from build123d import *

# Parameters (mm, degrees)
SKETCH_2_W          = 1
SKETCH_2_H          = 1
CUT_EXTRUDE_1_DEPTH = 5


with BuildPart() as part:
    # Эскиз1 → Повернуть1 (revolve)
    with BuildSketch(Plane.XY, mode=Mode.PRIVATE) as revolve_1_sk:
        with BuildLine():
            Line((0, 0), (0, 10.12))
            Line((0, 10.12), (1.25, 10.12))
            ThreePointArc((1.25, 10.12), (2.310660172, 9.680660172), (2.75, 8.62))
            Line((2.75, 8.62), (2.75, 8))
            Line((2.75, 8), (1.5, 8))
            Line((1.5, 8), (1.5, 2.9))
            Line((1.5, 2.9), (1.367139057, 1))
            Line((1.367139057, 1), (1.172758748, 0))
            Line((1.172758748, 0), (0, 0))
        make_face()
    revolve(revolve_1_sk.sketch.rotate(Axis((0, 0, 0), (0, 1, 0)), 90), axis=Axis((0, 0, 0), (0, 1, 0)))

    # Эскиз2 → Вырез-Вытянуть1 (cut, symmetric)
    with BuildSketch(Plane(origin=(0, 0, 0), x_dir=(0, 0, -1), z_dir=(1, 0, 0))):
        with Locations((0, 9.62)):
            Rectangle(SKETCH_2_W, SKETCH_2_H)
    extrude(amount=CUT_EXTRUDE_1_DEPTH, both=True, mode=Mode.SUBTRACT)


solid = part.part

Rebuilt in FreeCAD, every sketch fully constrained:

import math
import FreeCAD as App
import Part
import Sketcher

V = App.Vector
Q = App.Units.Quantity

doc = App.newDocument("Part")
body = doc.addObject("PartDesign::Body", "Body")

# Sketch on XY plane
sketch1 = body.newObject("Sketcher::SketchObject", "Sketch")
sketch1.AttachmentSupport = (doc.getObject("XY_Plane"), [""])
sketch1.MapMode = "FlatFace"
sketch1.addGeometry(Part.LineSegment(V(0, 10.1, 0), V(0, 0, 0)), False)
sketch1.addGeometry(Part.LineSegment(V(0, 0, 0), V(1.2, 0, 0)), False)
sketch1.addGeometry(Part.LineSegment(V(1.2, 0, 0), V(1.4, 1, 0)), False)
sketch1.addGeometry(Part.LineSegment(V(1.4, 1, 0), V(1.5, 2.9, 0)), False)
sketch1.addGeometry(Part.LineSegment(V(1.5, 2.9, 0), V(1.5, 8, 0)), False)
sketch1.addGeometry(Part.LineSegment(V(1.5, 8, 0), V(2.8, 8, 0)), False)
sketch1.addGeometry(Part.LineSegment(V(2.8, 8, 0), V(2.8, 8.6, 0)), False)
sketch1.addGeometry(Part.ArcOfCircle(Part.Circle(V(1.3, 8.6, 0), V(0, 0, 1), 1.5), math.radians(0), math.radians(90)), False)
sketch1.addGeometry(Part.LineSegment(V(1.2, 10.1, 0), V(0, 10.1, 0)), False)
sketch1.addConstraint(Sketcher.Constraint("Coincident", 0, 2, 1, 1))
sketch1.addConstraint(Sketcher.Constraint("Coincident", 1, 2, 2, 1))
sketch1.addConstraint(Sketcher.Constraint("Coincident", 2, 2, 3, 1))
sketch1.addConstraint(Sketcher.Constraint("Coincident", 3, 2, 4, 1))
sketch1.addConstraint(Sketcher.Constraint("Coincident", 4, 2, 5, 1))
sketch1.addConstraint(Sketcher.Constraint("Coincident", 5, 2, 6, 1))
sketch1.addConstraint(Sketcher.Constraint("Tangent", 6, 2, 7, 1))
sketch1.addConstraint(Sketcher.Constraint("Tangent", 7, 2, 8, 1))
sketch1.addConstraint(Sketcher.Constraint("Coincident", 8, 2, 0, 1))
sketch1.addConstraint(Sketcher.Constraint("Vertical", 0))
sketch1.addConstraint(Sketcher.Constraint("Horizontal", 1))
sketch1.addConstraint(Sketcher.Constraint("Vertical", 4))
sketch1.addConstraint(Sketcher.Constraint("Horizontal", 5))
sketch1.addConstraint(Sketcher.Constraint("Vertical", 6))
sketch1.addConstraint(Sketcher.Constraint("Horizontal", 8))
sketch1.addConstraint(Sketcher.Constraint("Coincident", 0, 2, -1, 1))
sketch1.addConstraint(Sketcher.Constraint("Equal", 5, 8))
sketch1.addConstraint(Sketcher.Constraint("Radius", 7, Q("1.5 mm")))
sketch1.addConstraint(Sketcher.Constraint("Angle", 2, Q("79 deg")))
sketch1.addConstraint(Sketcher.Constraint("Angle", 3, Q("86 deg")))
sketch1.addConstraint(Sketcher.Constraint("DistanceY", 4, 1, 4, 2, Q("5.1 mm")))
sketch1.addConstraint(Sketcher.Constraint("DistanceY", -1, 1, 2, 2, Q("1 mm")))
sketch1.addConstraint(Sketcher.Constraint("DistanceY", -1, 1, 4, 2, Q("8 mm")))
sketch1.addConstraint(Sketcher.Constraint("DistanceX", 5, 1, 5, 2, Q("1.25 mm")))
sketch1.addConstraint(Sketcher.Constraint("DistanceY", 0, 2, 0, 1, Q("10.12 mm")))
revolution = body.newObject("PartDesign::Revolution", "Revolution")
revolution.Profile = sketch1
revolution.ReferenceAxis = (sketch1, ["V_Axis"])
revolution.Angle = 360

# Sketch on YZ plane
sketch2 = body.newObject("Sketcher::SketchObject", "Sketch001")
sketch2.AttachmentSupport = (doc.getObject("YZ_Plane"), [""])
sketch2.MapMode = "FlatFace"
sketch2.addGeometry(Part.LineSegment(V(10.1, 0.5, 0), V(9.1, 0.5, 0)), False)
sketch2.addGeometry(Part.LineSegment(V(9.1, 0.5, 0), V(9.1, -0.5, 0)), False)
sketch2.addGeometry(Part.LineSegment(V(9.1, -0.5, 0), V(10.1, -0.5, 0)), False)
sketch2.addGeometry(Part.LineSegment(V(10.1, -0.5, 0), V(10.1, 0.5, 0)), False)
sketch2.addConstraint(Sketcher.Constraint("Coincident", 0, 2, 1, 1))
sketch2.addConstraint(Sketcher.Constraint("Coincident", 1, 2, 2, 1))
sketch2.addConstraint(Sketcher.Constraint("Coincident", 2, 2, 3, 1))
sketch2.addConstraint(Sketcher.Constraint("Coincident", 3, 2, 0, 1))
sketch2.addConstraint(Sketcher.Constraint("Horizontal", 0))
sketch2.addConstraint(Sketcher.Constraint("Vertical", 1))
sketch2.addConstraint(Sketcher.Constraint("Horizontal", 2))
sketch2.addConstraint(Sketcher.Constraint("Vertical", 3))
sketch2.addConstraint(Sketcher.Constraint("Equal", 2, 1))
sketch2.addConstraint(Sketcher.Constraint("DistanceX", 0, 2, 0, 1, Q("1 mm")))
sketch2.addConstraint(Sketcher.Constraint("DistanceY", -1, 1, 0, 2, Q("0.5 mm")))
sketch2.addConstraint(Sketcher.Constraint("DistanceX", -1, 1, 0, 2, Q("9.12 mm")))
pocket1 = body.newObject("PartDesign::Pocket", "Pocket")
pocket1.Profile = sketch2
pocket1.Length = 10
pocket1.Midplane = True

doc.recompute()
